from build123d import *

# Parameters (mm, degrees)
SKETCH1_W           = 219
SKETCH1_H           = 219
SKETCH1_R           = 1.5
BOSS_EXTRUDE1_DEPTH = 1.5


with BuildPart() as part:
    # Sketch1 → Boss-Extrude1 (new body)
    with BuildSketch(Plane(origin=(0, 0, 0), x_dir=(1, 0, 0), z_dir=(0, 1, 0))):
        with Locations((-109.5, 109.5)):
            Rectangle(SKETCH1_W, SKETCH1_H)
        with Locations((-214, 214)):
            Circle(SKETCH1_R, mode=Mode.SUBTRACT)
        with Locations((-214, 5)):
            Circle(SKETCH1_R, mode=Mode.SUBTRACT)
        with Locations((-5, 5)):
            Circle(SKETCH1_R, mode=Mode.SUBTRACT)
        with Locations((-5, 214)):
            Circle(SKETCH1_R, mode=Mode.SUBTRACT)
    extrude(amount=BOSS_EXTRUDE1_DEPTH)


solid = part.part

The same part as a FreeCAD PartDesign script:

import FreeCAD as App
import Part
import Sketcher
from FreeCAD import Vector

doc = App.newDocument("Part")
params = doc.addObject("Spreadsheet::Sheet", "Params")
for row, (alias, value) in enumerate([
    ("sketch1_diameter", "3 mm"),
    ("sketch1_width", "219 mm"),
    ("pad1_length", "1.5 mm"),
], start=1):
    params.set(f"A{row}", alias)
    params.set(f"B{row}", "=" + value)
    params.setAlias(f"B{row}", alias)

body = doc.addObject("PartDesign::Body", "Body")

sketch1 = body.newObject("Sketcher::SketchObject", "Sketch")
sketch1.AttachmentSupport = (doc.getObject("XZ_Plane"), [""])
sketch1.MapMode = "FlatFace"
sketch1.addGeometry([
    Part.LineSegment(Vector(-219, -219, 0), Vector(-219, 0, 0)),
    Part.LineSegment(Vector(-219, 0, 0), Vector(0, 0, 0)),
    Part.LineSegment(Vector(0, 0, 0), Vector(0, -219, 0)),
    Part.LineSegment(Vector(0, -219, 0), Vector(-219, -219, 0)),
    Part.Circle(Vector(-214, -5, 0), Vector(0, 0, 1), 1.5),
    Part.Circle(Vector(-5, -5, 0), Vector(0, 0, 1), 1.5),
    Part.Circle(Vector(-214, -214, 0), Vector(0, 0, 1), 1.5),
    Part.Circle(Vector(-5, -214, 0), Vector(0, 0, 1), 1.5),
], False)
sketch1.addConstraint([
    Sketcher.Constraint("Coincident", 0, 2, 1, 1),
    Sketcher.Constraint("Coincident", 1, 2, 2, 1),
    Sketcher.Constraint("Coincident", 2, 2, 3, 1),
    Sketcher.Constraint("Coincident", 3, 2, 0, 1),
    Sketcher.Constraint("Vertical", 0),
    Sketcher.Constraint("Horizontal", 1),
    Sketcher.Constraint("Vertical", 2),
    Sketcher.Constraint("Horizontal", 3),
    Sketcher.Constraint("Coincident", 1, 2, -1, 1),
    Sketcher.Constraint("Equal", 4, 5),
    Sketcher.Constraint("Equal", 5, 6),
    Sketcher.Constraint("Equal", 6, 7),
    Sketcher.Constraint("Horizontal", 4, 3, 5, 3),
    Sketcher.Constraint("Horizontal", 6, 3, 7, 3),
    Sketcher.Constraint("Vertical", 4, 3, 6, 3),
    Sketcher.Constraint("Vertical", 5, 3, 7, 3),
    Sketcher.Constraint("Equal", 3, 0),
    Sketcher.Constraint("Diameter", 4, 3.0),
    Sketcher.Constraint("DistanceX", 1, 1, 1, 2, 219.0),
    Sketcher.Constraint("DistanceX", 4, 3, -1, 1, 214.0),
    Sketcher.Constraint("DistanceY", 4, 3, -1, 1, 5.0),
    Sketcher.Constraint("DistanceX", 5, 3, -1, 1, 5.0),
    Sketcher.Constraint("DistanceY", 6, 3, -1, 1, 214.0),
])
sketch1.setExpression("Constraints[17]", "Params.sketch1_diameter")
sketch1.setExpression("Constraints[18]", "Params.sketch1_width")
pad1 = body.newObject("PartDesign::Pad", "Pad")
pad1.Profile = sketch1
pad1.setExpression("Length", "Params.pad1_length")
pad1.Reversed = True

doc.recompute()
